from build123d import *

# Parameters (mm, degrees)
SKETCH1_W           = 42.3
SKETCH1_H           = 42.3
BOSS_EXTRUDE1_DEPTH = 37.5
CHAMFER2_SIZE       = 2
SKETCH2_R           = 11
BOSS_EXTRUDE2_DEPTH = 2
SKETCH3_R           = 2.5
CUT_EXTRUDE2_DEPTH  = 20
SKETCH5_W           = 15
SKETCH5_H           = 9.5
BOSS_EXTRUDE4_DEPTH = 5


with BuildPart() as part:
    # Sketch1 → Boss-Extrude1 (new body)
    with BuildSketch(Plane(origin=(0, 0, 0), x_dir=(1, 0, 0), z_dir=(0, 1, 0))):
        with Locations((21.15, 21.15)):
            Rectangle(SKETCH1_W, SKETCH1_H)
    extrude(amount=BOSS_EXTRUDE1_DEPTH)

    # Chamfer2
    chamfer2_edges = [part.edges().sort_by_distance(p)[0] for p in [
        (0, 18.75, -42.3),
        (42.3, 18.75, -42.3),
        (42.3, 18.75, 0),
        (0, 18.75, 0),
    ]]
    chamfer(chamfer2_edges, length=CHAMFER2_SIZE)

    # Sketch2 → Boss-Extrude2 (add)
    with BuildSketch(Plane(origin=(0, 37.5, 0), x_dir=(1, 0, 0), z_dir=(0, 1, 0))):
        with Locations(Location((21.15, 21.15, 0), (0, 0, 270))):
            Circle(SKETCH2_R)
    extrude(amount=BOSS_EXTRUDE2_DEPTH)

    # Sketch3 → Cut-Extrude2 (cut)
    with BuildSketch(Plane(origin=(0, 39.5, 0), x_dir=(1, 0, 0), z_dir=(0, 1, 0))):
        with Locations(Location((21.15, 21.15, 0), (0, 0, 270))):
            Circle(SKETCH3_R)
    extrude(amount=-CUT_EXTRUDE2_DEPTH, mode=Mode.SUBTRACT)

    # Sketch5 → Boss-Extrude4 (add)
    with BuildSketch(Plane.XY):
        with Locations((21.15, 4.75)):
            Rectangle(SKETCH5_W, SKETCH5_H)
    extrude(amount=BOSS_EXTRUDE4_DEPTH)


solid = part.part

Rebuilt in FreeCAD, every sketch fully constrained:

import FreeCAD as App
import Part
import Sketcher
Q = App.Units.Quantity


def edges_at(feature, points):
    """Names of the edges that pass closest to the given points."""
    edges = feature.Shape.Edges
    near = lambda p: min(range(len(edges)), key=lambda i: edges[i].distToShape(Part.Vertex(*p))[0])
    return sorted({f"Edge{near(p) + 1}" for p in points})

doc = App.newDocument("Part")
body = doc.addObject("PartDesign::Body", "Body")

# Sketch on XZ plane
sketch1 = doc.addObject("Sketcher::SketchObject", "Sketch")
body.addObject(sketch1)
sketch1.AttachmentSupport = (doc.XZ_Plane, [""])
sketch1.MapMode = "FlatFace"
sketch1.addGeometry([
    Part.LineSegment(App.Vector(0, -42.3, 0), App.Vector(0, 0, 0)),
    Part.LineSegment(App.Vector(0, 0, 0), App.Vector(42.3, 0, 0)),
    Part.LineSegment(App.Vector(42.3, 0, 0), App.Vector(42.3, -42.3, 0)),
    Part.LineSegment(App.Vector(42.3, -42.3, 0), App.Vector(0, -42.3, 0)),
], False)
sketch1.addConstraint([
    Sketcher.Constraint("Coincident", 0, 2, 1, 1),
    Sketcher.Constraint("Coincident", 1, 2, 2, 1),
    Sketcher.Constraint("Coincident", 2, 2, 3, 1),
    Sketcher.Constraint("Coincident", 3, 2, 0, 1),
    Sketcher.Constraint("Vertical", 0),
    Sketcher.Constraint("Horizontal", 1),
    Sketcher.Constraint("Vertical", 2),
    Sketcher.Constraint("Horizontal", 3),
    Sketcher.Constraint("Coincident", 0, 2, -1, 1),
    Sketcher.Constraint("Equal", 3, 0),
    Sketcher.Constraint("DistanceX", 1, 1, 1, 2, Q("42.3 mm")),
])
pad1 = doc.addObject("PartDesign::Pad", "Pad")
body.addObject(pad1)
pad1.Profile = sketch1
pad1.Length = 37.5
pad1.Reversed = True
doc.recompute()

chamfer = doc.addObject("PartDesign::Chamfer", "Chamfer")
body.addObject(chamfer)
chamfer.Base = (pad1, edges_at(pad1, [
    (0, 18.75, -42.3),
    (42.3, 18.75, -42.3),
    (42.3, 18.75, 0),
    (0, 18.75, 0),
]))
chamfer.Size = 2

# Sketch on XZ plane
sketch2 = doc.addObject("Sketcher::SketchObject", "Sketch001")
body.addObject(sketch2)
sketch2.AttachmentSupport = (doc.XZ_Plane, [""])
sketch2.MapMode = "FlatFace"
sketch2.AttachmentOffset = App.Placement(App.Vector(0, 0, -37.5), App.Rotation())
sketch2.addGeometry(Part.Circle(App.Vector(21.15, -21.15, 0), App.Vector(0, 0, 1), 11), False)
sketch2.addConstraint([
    Sketcher.Constraint("Diameter", 0, Q("22 mm")),
    Sketcher.Constraint("DistanceX", -1, 1, 0, 3, Q("21.15 mm")),
    Sketcher.Constraint("DistanceY", 0, 3, -1, 1, Q("21.15 mm")),
])
pad2 = doc.addObject("PartDesign::Pad", "Pad001")
body.addObject(pad2)
pad2.Profile = sketch2
pad2.Length = 2
pad2.Reversed = True

# Sketch on XZ plane
sketch3 = doc.addObject("Sketcher::SketchObject", "Sketch002")
body.addObject(sketch3)
sketch3.AttachmentSupport = (doc.XZ_Plane, [""])
sketch3.MapMode = "FlatFace"
sketch3.AttachmentOffset = App.Placement(App.Vector(0, 0, -39.5), App.Rotation())
sketch3.addGeometry(Part.Circle(App.Vector(21.15, -21.15, 0), App.Vector(0, 0, 1), 2.5), False)
sketch3.addConstraint([
    Sketcher.Constraint("Diameter", 0, Q("5 mm")),
    Sketcher.Constraint("DistanceX", -1, 1, 0, 3, Q("21.15 mm")),
    Sketcher.Constraint("DistanceY", 0, 3, -1, 1, Q("21.15 mm")),
])
pocket1 = doc.addObject("PartDesign::Pocket", "Pocket")
body.addObject(pocket1)
pocket1.Profile = sketch3
pocket1.Length = 20
pocket1.Reversed = True

# Sketch on XY plane
sketch4 = doc.addObject("Sketcher::SketchObject", "Sketch003")
body.addObject(sketch4)
sketch4.AttachmentSupport = (doc.XY_Plane, [""])
sketch4.MapMode = "FlatFace"
sketch4.addGeometry([
    Part.LineSegment(App.Vector(13.65, 9.5, 0), App.Vector(13.65, 0, 0)),
    Part.LineSegment(App.Vector(13.65, 0, 0), App.Vector(28.65, 0, 0)),
    Part.LineSegment(App.Vector(28.65, 0, 0), App.Vector(28.65, 9.5, 0)),
    Part.LineSegment(App.Vector(28.65, 9.5, 0), App.Vector(13.65, 9.5, 0)),
], False)
sketch4.addConstraint([
    Sketcher.Constraint("Coincident", 0, 2, 1, 1),
    Sketcher.Constraint("Coincident", 1, 2, 2, 1),
    Sketcher.Constraint("Coincident", 2, 2, 3, 1),
    Sketcher.Constraint("Coincident", 3, 2, 0, 1),
    Sketcher.Constraint("Vertical", 0),
    Sketcher.Constraint("Horizontal", 1),
    Sketcher.Constraint("Vertical", 2),
    Sketcher.Constraint("Horizontal", 3),
    Sketcher.Constraint("PointOnObject", 0, 2, -1),
    Sketcher.Constraint("DistanceX", 1, 1, 1, 2, Q("15 mm")),
    Sketcher.Constraint("DistanceY", 0, 2, 0, 1, Q("9.5 mm")),
    Sketcher.Constraint("DistanceX", -1, 1, 0, 2, Q("13.65 mm")),
])
pad3 = doc.addObject("PartDesign::Pad", "Pad002")
body.addObject(pad3)
pad3.Profile = sketch4
pad3.Length = 5

doc.recompute()
